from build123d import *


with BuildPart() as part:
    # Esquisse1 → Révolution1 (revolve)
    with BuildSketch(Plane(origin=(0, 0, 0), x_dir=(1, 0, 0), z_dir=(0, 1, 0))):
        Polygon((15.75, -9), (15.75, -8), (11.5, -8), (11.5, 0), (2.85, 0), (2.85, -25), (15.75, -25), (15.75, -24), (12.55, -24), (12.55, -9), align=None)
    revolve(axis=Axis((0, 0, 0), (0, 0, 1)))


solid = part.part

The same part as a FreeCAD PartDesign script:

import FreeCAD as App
import Part
import Sketcher
from FreeCAD import Vector
Q = App.Units.Quantity

doc = App.newDocument("Part")
body = doc.addObject("PartDesign::Body", "Body")

# Sketch on XZ plane
sketch1 = body.newObject("Sketcher::SketchObject", "Sketch")
sketch1.AttachmentSupport = (doc.getObject("XZ_Plane"), [""])
sketch1.MapMode = "FlatFace"
sketch1.addGeometry(Part.LineSegment(Vector(15.8, 9, 0), Vector(15.8, 8, 0)), False)
sketch1.addGeometry(Part.LineSegment(Vector(15.8, 8, 0), Vector(11.5, 8, 0)), False)
sketch1.addGeometry(Part.LineSegment(Vector(11.5, 8, 0), Vector(11.5, 0, 0)), False)
sketch1.addGeometry(Part.LineSegment(Vector(11.5, 0, 0), Vector(2.9, 0, 0)), False)
sketch1.addGeometry(Part.LineSegment(Vector(2.9, 0, 0), Vector(2.9, 25, 0)), False)
sketch1.addGeometry(Part.LineSegment(Vector(2.9, 25, 0), Vector(15.8, 25, 0)), False)
sketch1.addGeometry(Part.LineSegment(Vector(15.8, 25, 0), Vector(15.8, 24, 0)), False)
sketch1.addGeometry(Part.LineSegment(Vector(15.8, 24, 0), Vector(12.6, 24, 0)), False)
sketch1.addGeometry(Part.LineSegment(Vector(12.6, 24, 0), Vector(12.6, 9, 0)), False)
sketch1.addGeometry(Part.LineSegment(Vector(12.6, 9, 0), Vector(15.8, 9, 0)), False)
sketch1.addConstraint(Sketcher.Constraint("Coincident", 0, 2, 1, 1))
sketch1.addConstraint(Sketcher.Constraint("Coincident", 1, 2, 2, 1))
sketch1.addConstraint(Sketcher.Constraint("Coincident", 2, 2, 3, 1))
sketch1.addConstraint(Sketcher.Constraint("Coincident", 3, 2, 4, 1))
sketch1.addConstraint(Sketcher.Constraint("Coincident", 4, 2, 5, 1))
sketch1.addConstraint(Sketcher.Constraint("Coincident", 5, 2, 6, 1))
sketch1.addConstraint(Sketcher.Constraint("Coincident", 6, 2, 7, 1))
sketch1.addConstraint(Sketcher.Constraint("Coincident", 7, 2, 8, 1))
sketch1.addConstraint(Sketcher.Constraint("Coincident", 8, 2, 9, 1))
sketch1.addConstraint(Sketcher.Constraint("Coincident", 9, 2, 0, 1))
sketch1.addConstraint(Sketcher.Constraint("Vertical", 0))
sketch1.addConstraint(Sketcher.Constraint("Horizontal", 1))
sketch1.addConstraint(Sketcher.Constraint("Vertical", 2))
sketch1.addConstraint(Sketcher.Constraint("Horizontal", 3))
sketch1.addConstraint(Sketcher.Constraint("Vertical", 4))
sketch1.addConstraint(Sketcher.Constraint("Horizontal", 5))
sketch1.addConstraint(Sketcher.Constraint("Vertical", 6))
sketch1.addConstraint(Sketcher.Constraint("Horizontal", 7))
sketch1.addConstraint(Sketcher.Constraint("Vertical", 8))
sketch1.addConstraint(Sketcher.Constraint("Horizontal", 9))
sketch1.addConstraint(Sketcher.Constraint("PointOnObject", 2, 2, -1))
sketch1.addConstraint(Sketcher.Constraint("Vertical", 0, 2, 5, 2))
sketch1.addConstraint(Sketcher.Constraint("Equal", 0, 6))
sketch1.addConstraint(Sketcher.Constraint("DistanceY", 0, 2, 0, 1, Q("1 mm")))
sketch1.addConstraint(Sketcher.Constraint("DistanceY", 2, 2, 2, 1, Q("8 mm")))
sketch1.addConstraint(Sketcher.Constraint("DistanceY", 4, 1, 4, 2, Q("25 mm")))
sketch1.addConstraint(Sketcher.Constraint("DistanceX", 5, 1, 5, 2, Q("12.9 mm")))
sketch1.addConstraint(Sketcher.Constraint("DistanceX", 7, 2, 7, 1, Q("3.2 mm")))
sketch1.addConstraint(Sketcher.Constraint("DistanceX", 1, 2, 1, 1, Q("4.25 mm")))
sketch1.addConstraint(Sketcher.Constraint("DistanceX", -1, 1, 1, 2, Q("11.5 mm")))
revolution = body.newObject("PartDesign::Revolution", "Revolution")
revolution.Profile = sketch1
revolution.ReferenceAxis = (sketch1, ["V_Axis"])
revolution.Angle = 360

doc.recompute()
